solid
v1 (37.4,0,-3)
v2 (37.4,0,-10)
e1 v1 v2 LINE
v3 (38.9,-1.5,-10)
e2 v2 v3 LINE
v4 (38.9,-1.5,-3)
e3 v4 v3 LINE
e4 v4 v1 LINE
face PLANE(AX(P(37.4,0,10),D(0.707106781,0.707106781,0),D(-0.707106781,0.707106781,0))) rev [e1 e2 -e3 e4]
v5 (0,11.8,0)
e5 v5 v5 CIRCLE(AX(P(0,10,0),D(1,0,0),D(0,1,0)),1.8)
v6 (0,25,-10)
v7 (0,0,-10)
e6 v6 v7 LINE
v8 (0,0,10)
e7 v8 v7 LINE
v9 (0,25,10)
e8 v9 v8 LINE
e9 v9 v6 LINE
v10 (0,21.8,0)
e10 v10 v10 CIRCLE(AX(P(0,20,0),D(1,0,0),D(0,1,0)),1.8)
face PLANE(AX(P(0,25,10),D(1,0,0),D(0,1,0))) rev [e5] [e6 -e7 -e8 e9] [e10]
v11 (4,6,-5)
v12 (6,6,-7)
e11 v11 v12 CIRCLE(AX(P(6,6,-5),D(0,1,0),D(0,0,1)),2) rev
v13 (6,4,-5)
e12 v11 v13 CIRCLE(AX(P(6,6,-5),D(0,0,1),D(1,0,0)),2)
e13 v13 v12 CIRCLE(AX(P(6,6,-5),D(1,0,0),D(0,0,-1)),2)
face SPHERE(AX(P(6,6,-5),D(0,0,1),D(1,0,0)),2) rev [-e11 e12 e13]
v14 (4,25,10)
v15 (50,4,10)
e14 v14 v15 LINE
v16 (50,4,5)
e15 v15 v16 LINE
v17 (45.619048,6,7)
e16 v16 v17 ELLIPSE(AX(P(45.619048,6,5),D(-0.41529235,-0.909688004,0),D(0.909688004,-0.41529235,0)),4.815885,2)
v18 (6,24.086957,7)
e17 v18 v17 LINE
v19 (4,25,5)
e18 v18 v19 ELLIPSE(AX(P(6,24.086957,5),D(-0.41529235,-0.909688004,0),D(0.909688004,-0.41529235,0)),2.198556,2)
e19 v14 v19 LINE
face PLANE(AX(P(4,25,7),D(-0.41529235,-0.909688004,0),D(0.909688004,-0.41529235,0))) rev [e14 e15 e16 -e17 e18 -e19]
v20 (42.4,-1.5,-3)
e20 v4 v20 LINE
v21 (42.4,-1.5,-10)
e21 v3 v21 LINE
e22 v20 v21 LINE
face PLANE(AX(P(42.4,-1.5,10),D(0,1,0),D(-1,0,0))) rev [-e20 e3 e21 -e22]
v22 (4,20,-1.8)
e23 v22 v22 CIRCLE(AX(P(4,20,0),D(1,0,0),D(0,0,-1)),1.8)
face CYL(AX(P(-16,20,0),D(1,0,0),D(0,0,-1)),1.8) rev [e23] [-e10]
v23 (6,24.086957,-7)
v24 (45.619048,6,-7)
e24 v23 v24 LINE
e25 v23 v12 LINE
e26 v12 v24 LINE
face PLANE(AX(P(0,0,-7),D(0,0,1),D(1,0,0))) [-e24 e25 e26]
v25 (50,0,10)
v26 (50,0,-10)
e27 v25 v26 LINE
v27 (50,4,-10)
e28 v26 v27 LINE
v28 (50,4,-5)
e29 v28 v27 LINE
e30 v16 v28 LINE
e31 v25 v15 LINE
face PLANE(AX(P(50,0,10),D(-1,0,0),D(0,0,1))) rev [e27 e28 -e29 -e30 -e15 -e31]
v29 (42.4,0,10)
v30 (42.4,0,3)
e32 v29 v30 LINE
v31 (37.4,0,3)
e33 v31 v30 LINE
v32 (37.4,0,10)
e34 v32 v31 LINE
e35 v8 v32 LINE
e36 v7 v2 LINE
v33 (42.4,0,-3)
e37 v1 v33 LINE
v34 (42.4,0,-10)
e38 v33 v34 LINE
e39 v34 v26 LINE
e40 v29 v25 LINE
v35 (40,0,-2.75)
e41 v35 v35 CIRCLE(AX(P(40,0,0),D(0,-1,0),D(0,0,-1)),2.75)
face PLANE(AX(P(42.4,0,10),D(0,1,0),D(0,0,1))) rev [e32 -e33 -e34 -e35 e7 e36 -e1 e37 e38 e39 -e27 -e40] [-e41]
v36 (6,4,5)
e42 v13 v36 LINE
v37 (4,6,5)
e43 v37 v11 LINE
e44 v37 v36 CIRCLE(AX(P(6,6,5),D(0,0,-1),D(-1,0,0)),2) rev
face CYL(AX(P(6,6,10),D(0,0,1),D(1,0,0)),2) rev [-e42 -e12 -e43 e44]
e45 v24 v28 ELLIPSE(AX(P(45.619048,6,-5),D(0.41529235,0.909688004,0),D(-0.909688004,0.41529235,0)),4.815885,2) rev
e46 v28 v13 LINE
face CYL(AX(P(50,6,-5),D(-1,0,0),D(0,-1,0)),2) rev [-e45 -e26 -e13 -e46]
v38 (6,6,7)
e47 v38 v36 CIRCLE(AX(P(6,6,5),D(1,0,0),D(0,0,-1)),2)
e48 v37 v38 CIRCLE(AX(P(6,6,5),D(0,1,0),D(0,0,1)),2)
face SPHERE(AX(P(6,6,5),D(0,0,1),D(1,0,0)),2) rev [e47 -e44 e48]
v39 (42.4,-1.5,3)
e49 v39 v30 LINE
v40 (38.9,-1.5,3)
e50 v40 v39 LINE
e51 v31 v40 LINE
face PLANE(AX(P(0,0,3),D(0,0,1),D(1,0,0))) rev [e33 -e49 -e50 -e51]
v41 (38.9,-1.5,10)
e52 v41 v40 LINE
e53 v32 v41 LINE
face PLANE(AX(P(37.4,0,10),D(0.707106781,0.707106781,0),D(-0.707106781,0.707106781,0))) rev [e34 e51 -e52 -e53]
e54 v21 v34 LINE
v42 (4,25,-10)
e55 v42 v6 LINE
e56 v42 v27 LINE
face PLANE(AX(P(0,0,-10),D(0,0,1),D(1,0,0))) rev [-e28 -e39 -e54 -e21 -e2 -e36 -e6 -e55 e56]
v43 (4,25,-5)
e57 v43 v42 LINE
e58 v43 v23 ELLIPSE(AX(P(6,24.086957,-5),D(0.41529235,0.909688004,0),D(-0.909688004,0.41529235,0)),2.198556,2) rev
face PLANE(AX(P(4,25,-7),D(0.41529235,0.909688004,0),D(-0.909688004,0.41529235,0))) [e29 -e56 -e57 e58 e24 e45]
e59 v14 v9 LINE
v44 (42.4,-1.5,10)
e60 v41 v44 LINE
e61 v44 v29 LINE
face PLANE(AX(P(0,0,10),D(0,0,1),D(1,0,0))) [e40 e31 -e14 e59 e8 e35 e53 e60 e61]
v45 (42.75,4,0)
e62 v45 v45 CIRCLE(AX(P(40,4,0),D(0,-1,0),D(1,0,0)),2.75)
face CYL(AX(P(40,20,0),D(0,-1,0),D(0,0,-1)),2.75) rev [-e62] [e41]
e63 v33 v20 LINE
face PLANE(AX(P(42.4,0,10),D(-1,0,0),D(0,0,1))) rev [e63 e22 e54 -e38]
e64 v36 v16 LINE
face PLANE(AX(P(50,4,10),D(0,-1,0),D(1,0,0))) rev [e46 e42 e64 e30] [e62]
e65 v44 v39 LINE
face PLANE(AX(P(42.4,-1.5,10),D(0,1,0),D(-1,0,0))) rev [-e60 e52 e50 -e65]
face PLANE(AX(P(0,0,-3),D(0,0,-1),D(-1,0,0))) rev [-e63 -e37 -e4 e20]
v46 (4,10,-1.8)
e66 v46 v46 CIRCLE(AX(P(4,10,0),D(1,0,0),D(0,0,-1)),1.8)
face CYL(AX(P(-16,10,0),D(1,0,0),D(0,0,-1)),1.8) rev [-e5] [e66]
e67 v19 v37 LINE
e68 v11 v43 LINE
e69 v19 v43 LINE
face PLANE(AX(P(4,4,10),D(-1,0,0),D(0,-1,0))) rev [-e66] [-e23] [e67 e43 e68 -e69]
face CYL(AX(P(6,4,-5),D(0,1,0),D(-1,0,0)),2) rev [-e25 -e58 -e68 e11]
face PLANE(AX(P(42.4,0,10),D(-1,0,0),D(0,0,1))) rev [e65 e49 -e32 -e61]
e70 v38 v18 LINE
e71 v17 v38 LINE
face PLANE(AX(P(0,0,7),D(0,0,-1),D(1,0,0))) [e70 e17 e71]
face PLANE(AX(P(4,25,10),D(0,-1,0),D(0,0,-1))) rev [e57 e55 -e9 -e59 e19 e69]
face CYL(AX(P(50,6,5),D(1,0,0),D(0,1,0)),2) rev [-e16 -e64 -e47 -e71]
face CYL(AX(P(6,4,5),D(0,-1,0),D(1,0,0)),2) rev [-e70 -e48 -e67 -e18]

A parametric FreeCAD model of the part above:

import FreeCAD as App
import Part
import Sketcher

V = App.Vector
Q = App.Units.Quantity


def edges_at(feature, points):
    """Names of the edges that pass closest to the given points."""
    edges = feature.Shape.Edges
    near = lambda p: min(range(len(edges)), key=lambda i: edges[i].distToShape(Part.Vertex(*p))[0])
    return sorted({f"Edge{near(p) + 1}" for p in points})

doc = App.newDocument("Part")
body = doc.addObject("PartDesign::Body", "Body")

sketch1 = body.newObject("Sketcher::SketchObject", "Sketch")
sketch1.AttachmentSupport = (doc.getObject("XY_Plane"), [""])
sketch1.MapMode = "FlatFace"
sketch1.addGeometry([
    Part.LineSegment(V(0, 0, 0), V(37.4, 0, 0)),
    Part.LineSegment(V(37.4, 0, 0), V(38.9, -1.5, 0)),
    Part.LineSegment(V(38.9, -1.5, 0), V(42.4, -1.5, 0)),
    Part.LineSegment(V(42.4, -1.5, 0), V(42.4, 0, 0)),
    Part.LineSegment(V(42.4, 0, 0), V(50, 0, 0)),
    Part.LineSegment(V(50, 0, 0), V(50, 4, 0)),
    Part.LineSegment(V(50, 4, 0), V(4, 4, 0)),
    Part.LineSegment(V(4, 4, 0), V(4, 25, 0)),
    Part.LineSegment(V(4, 25, 0), V(0, 25, 0)),
    Part.LineSegment(V(0, 25, 0), V(0, 0, 0)),
], False)
sketch1.addConstraint([
    Sketcher.Constraint("Coincident", 0, 2, 1, 1),
    Sketcher.Constraint("Coincident", 1, 2, 2, 1),
    Sketcher.Constraint("Coincident", 2, 2, 3, 1),
    Sketcher.Constraint("Coincident", 3, 2, 4, 1),
    Sketcher.Constraint("Coincident", 4, 2, 5, 1),
    Sketcher.Constraint("Coincident", 5, 2, 6, 1),
    Sketcher.Constraint("Coincident", 6, 2, 7, 1),
    Sketcher.Constraint("Coincident", 7, 2, 8, 1),
    Sketcher.Constraint("Coincident", 8, 2, 9, 1),
    Sketcher.Constraint("Coincident", 9, 2, 0, 1),
    Sketcher.Constraint("Horizontal", 0),
    Sketcher.Constraint("Horizontal", 2),
    Sketcher.Constraint("Vertical", 3),
    Sketcher.Constraint("Horizontal", 4),
    Sketcher.Constraint("Vertical", 5),
    Sketcher.Constraint("Horizontal", 6),
    Sketcher.Constraint("Vertical", 7),
    Sketcher.Constraint("Horizontal", 8),
    Sketcher.Constraint("Vertical", 9),
    Sketcher.Constraint("Coincident", 9, 2, -1, 1),
    Sketcher.Constraint("PointOnObject", 3, 2, -1),
    Sketcher.Constraint("Equal", 8, 5),
    Sketcher.Constraint("DistanceX", 6, 2, 6, 1, 46.0),
    Sketcher.Constraint("DistanceX", 8, 2, 8, 1, 4.0),
    Sketcher.Constraint("DistanceY", 7, 1, 7, 2, 21.0),
    Sketcher.Constraint("Angle", 1, Q("-45 deg")),
    Sketcher.Constraint("DistanceX", 0, 1, 0, 2, 37.4),
    Sketcher.Constraint("DistanceX", 2, 1, 2, 2, 3.5),
    Sketcher.Constraint("DistanceX", 4, 1, 4, 2, 7.6),
])
pad1 = body.newObject("PartDesign::Pad", "Pad")
pad1.Profile = sketch1
pad1.Length = 20
pad1.Midplane = True

sketch2 = body.newObject("Sketcher::SketchObject", "Sketch001")
sketch2.AttachmentSupport = (doc.getObject("YZ_Plane"), [""])
sketch2.MapMode = "FlatFace"
sketch2.AttachmentOffset = App.Placement(V(0, 0, 50), App.Rotation())
sketch2.addGeometry([
    Part.LineSegment(V(0, 3, 0), V(-1.5, 3, 0)),
    Part.LineSegment(V(-1.5, 3, 0), V(-1.5, -3, 0)),
    Part.LineSegment(V(-1.5, -3, 0), V(0, -3, 0)),
    Part.LineSegment(V(0, -3, 0), V(0, 3, 0)),
], False)
sketch2.addConstraint([
    Sketcher.Constraint("Coincident", 0, 2, 1, 1),
    Sketcher.Constraint("Coincident", 1, 2, 2, 1),
    Sketcher.Constraint("Coincident", 2, 2, 3, 1),
    Sketcher.Constraint("Coincident", 3, 2, 0, 1),
    Sketcher.Constraint("Horizontal", 0),
    Sketcher.Constraint("Vertical", 1),
    Sketcher.Constraint("Horizontal", 2),
    Sketcher.Constraint("Vertical", 3),
    Sketcher.Constraint("Symmetric", 2, 2, 3, 2, -1, 1),
    Sketcher.Constraint("DistanceY", 1, 2, 1, 1, 6.0),
    Sketcher.Constraint("DistanceX", 0, 2, 0, 1, 1.5),
])
pocket1 = body.newObject("PartDesign::Pocket", "Pocket")
pocket1.Profile = sketch2
pocket1.Type = "ThroughAll"

sketch3 = body.newObject("Sketcher::SketchObject", "Sketch002")
sketch3.AttachmentSupport = (doc.getObject("XZ_Plane"), [""])
sketch3.MapMode = "FlatFace"
sketch3.addGeometry(Part.Circle(V(40, 0, 0), V(0, 0, 1), 2.75), False)
sketch3.addConstraint([
    Sketcher.Constraint("PointOnObject", 0, 3, -1),
    Sketcher.Constraint("Diameter", 0, 5.5),
    Sketcher.Constraint("DistanceX", -1, 1, 0, 3, 40.0),
])
pocket2 = body.newObject("PartDesign::Pocket", "Pocket001")
pocket2.Profile = sketch3
pocket2.Length = 20

sketch4 = body.newObject("Sketcher::SketchObject", "Sketch003")
sketch4.AttachmentSupport = (doc.getObject("YZ_Plane"), [""])
sketch4.MapMode = "FlatFace"
sketch4.AttachmentOffset = App.Placement(V(0, 0, 4), App.Rotation())
sketch4.addGeometry([
    Part.Circle(V(20, 0, 0), V(0, 0, 1), 1.8),
    Part.Circle(V(10, 0, 0), V(0, 0, 1), 1.8),
], False)
sketch4.addConstraint([
    Sketcher.Constraint("Equal", 0, 1),
    Sketcher.Constraint("PointOnObject", 0, 3, -1),
    Sketcher.Constraint("PointOnObject", 1, 3, -1),
    Sketcher.Constraint("Diameter", 0, 3.6),
    Sketcher.Constraint("DistanceX", -1, 1, 0, 3, 20.0),
    Sketcher.Constraint("DistanceX", -1, 1, 1, 3, 10.0),
])
pocket3 = body.newObject("PartDesign::Pocket", "Pocket002")
pocket3.Profile = sketch4
pocket3.Length = 20

sketch5 = body.newObject("Sketcher::SketchObject", "Sketch004")
sketch5.AttachmentSupport = (doc.getObject("XY_Plane"), [""])
sketch5.MapMode = "FlatFace"
sketch5.AttachmentOffset = App.Placement(V(0, 0, -10), App.Rotation())
sketch5.addGeometry([
    Part.LineSegment(V(50, 0, 0), V(0, 0, 0)),
    Part.LineSegment(V(0, 0, 0), V(0, 25, 0)),
    Part.LineSegment(V(0, 25, 0), V(4, 25, 0)),
    Part.LineSegment(V(4, 25, 0), V(50, 4, 0)),
    Part.LineSegment(V(50, 4, 0), V(50, 0, 0)),
], False)
sketch5.addConstraint([
    Sketcher.Constraint("Coincident", 0, 2, 1, 1),
    Sketcher.Constraint("Coincident", 1, 2, 2, 1),
    Sketcher.Constraint("Coincident", 2, 2, 3, 1),
    Sketcher.Constraint("Coincident", 3, 2, 4, 1),
    Sketcher.Constraint("Coincident", 4, 2, 0, 1),
    Sketcher.Constraint("Horizontal", 0),
    Sketcher.Constraint("Vertical", 1),
    Sketcher.Constraint("Horizontal", 2),
    Sketcher.Constraint("Vertical", 4),
    Sketcher.Constraint("Coincident", 0, 2, -1, 1),
    Sketcher.Constraint("Equal", 2, 4),
    Sketcher.Constraint("DistanceX", 0, 2, 0, 1, 50.0),
    Sketcher.Constraint("DistanceX", 2, 1, 2, 2, 4.0),
    Sketcher.Constraint("DistanceY", 1, 1, 1, 2, 25.0),
])
pad2 = body.newObject("PartDesign::Pad", "Pad001")
pad2.Profile = sketch5
pad2.Length = 3
doc.recompute()

mirrored = body.newObject("PartDesign::Mirrored", "Mirrored")
mirrored.Originals = [pad2]
mirrored.MirrorPlane = (doc.getObject("XY_Plane"), [""])
body.Tip = mirrored
doc.recompute()

fillet = body.newObject("PartDesign::Fillet", "Fillet")
fillet.Base = (mirrored, edges_at(mirrored, [
    (4, 14.5, 7),
    (27, 4, 7),
    (27, 4, -7),
    (4, 14.5, -7),
    (4, 4, 0),
]))
fillet.Radius = 2

doc.recompute()
